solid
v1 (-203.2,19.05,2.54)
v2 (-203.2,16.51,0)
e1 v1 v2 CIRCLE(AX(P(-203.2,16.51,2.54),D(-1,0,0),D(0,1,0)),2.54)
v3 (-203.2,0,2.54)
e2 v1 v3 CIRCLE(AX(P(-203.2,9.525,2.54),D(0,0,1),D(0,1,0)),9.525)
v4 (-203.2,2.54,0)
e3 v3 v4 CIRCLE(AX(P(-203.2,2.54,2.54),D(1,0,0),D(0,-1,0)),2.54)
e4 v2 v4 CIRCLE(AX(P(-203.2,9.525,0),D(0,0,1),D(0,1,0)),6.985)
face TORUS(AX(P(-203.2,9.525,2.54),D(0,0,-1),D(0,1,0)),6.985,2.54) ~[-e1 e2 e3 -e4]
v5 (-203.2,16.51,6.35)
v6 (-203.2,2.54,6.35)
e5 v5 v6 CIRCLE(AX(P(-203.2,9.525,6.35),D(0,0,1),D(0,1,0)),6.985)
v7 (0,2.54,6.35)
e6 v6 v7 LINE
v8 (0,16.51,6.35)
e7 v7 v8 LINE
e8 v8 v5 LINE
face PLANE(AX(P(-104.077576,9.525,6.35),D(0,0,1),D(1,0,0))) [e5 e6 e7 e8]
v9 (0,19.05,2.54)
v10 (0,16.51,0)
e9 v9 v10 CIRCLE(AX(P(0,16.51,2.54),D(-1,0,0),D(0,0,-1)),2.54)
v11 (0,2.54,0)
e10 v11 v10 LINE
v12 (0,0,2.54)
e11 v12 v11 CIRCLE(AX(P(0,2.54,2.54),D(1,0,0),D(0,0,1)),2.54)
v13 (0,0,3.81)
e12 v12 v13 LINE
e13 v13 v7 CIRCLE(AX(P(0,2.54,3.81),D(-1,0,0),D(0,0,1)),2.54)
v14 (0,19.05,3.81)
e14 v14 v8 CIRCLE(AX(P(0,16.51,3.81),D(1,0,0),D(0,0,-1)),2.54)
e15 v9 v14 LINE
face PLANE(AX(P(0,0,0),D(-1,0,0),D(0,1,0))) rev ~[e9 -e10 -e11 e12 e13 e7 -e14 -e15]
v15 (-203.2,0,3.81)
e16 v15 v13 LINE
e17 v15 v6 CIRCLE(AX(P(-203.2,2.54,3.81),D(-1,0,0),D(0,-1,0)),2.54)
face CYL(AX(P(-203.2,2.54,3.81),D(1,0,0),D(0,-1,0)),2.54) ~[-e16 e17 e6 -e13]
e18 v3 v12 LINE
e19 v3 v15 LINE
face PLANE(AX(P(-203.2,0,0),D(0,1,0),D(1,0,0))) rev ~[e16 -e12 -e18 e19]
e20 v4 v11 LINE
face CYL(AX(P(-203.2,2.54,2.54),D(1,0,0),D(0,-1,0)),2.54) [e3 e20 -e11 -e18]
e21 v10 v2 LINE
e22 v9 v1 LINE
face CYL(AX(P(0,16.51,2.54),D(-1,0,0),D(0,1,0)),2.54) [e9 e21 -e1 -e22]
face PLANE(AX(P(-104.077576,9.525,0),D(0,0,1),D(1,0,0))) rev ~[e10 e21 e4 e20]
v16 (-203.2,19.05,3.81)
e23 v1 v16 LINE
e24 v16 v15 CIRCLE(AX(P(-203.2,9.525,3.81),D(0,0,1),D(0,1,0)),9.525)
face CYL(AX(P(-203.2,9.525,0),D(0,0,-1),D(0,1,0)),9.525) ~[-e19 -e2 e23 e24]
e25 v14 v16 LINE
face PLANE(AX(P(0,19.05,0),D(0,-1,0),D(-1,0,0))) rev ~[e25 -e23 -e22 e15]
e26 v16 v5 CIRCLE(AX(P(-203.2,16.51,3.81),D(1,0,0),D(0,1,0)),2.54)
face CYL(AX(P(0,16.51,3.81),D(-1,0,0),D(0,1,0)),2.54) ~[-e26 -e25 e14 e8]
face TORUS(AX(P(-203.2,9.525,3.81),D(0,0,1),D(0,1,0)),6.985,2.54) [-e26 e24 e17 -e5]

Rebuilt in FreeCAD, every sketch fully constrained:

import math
import FreeCAD as App
import Part
import Sketcher
from FreeCAD import Vector
Q = App.Units.Quantity


def edges_at(feature, points):
    """Names of the edges that pass closest to the given points."""
    edges = feature.Shape.Edges
    near = lambda p: min(range(len(edges)), key=lambda i: edges[i].distToShape(Part.Vertex(*p))[0])
    return sorted({f"Edge{near(p) + 1}" for p in points})

doc = App.newDocument("Part")
body = doc.addObject("PartDesign::Body", "Body")

sketch1 = body.newObject("Sketcher::SketchObject", "Sketch")
sketch1.AttachmentSupport = (doc.getObject("XY_Plane"), [""])
sketch1.MapMode = "FlatFace"
sketch1.addGeometry(Part.LineSegment(Vector(-203, 0, 0), Vector(0, 0, 0)), False)
sketch1.addGeometry(Part.LineSegment(Vector(0, 0, 0), Vector(0, 19, 0)), False)
sketch1.addGeometry(Part.LineSegment(Vector(0, 19, 0), Vector(-203, 19, 0)), False)
sketch1.addGeometry(Part.ArcOfCircle(Part.Circle(Vector(-203, 10, 0), Vector(0, 0, 1), 10), math.radians(90), math.radians(270)), False)
sketch1.addConstraint(Sketcher.Constraint("Coincident", 0, 2, 1, 1))
sketch1.addConstraint(Sketcher.Constraint("Coincident", 1, 2, 2, 1))
sketch1.addConstraint(Sketcher.Constraint("Tangent", 2, 2, 3, 1))
sketch1.addConstraint(Sketcher.Constraint("Tangent", 3, 2, 0, 1))
sketch1.addConstraint(Sketcher.Constraint("Horizontal", 0))
sketch1.addConstraint(Sketcher.Constraint("Vertical", 1))
sketch1.addConstraint(Sketcher.Constraint("Horizontal", 2))
sketch1.addConstraint(Sketcher.Constraint("Coincident", 0, 2, -1, 1))
sketch1.addConstraint(Sketcher.Constraint("DistanceX", 0, 1, 0, 2, Q("8 in")))
sketch1.addConstraint(Sketcher.Constraint("Radius", 3, Q("0.375 in")))
pad1 = body.newObject("PartDesign::Pad", "Pad")
pad1.Profile = sketch1
pad1.Length = Q("0.25 in")
doc.recompute()

fillet = body.newObject("PartDesign::Fillet", "Fillet")
fillet.Base = (pad1, edges_at(pad1, [(-101.6, 19.05, 0), (-101.6, 19.05, 6.35)]))
fillet.Radius = Q("0.1 in")

doc.recompute()
